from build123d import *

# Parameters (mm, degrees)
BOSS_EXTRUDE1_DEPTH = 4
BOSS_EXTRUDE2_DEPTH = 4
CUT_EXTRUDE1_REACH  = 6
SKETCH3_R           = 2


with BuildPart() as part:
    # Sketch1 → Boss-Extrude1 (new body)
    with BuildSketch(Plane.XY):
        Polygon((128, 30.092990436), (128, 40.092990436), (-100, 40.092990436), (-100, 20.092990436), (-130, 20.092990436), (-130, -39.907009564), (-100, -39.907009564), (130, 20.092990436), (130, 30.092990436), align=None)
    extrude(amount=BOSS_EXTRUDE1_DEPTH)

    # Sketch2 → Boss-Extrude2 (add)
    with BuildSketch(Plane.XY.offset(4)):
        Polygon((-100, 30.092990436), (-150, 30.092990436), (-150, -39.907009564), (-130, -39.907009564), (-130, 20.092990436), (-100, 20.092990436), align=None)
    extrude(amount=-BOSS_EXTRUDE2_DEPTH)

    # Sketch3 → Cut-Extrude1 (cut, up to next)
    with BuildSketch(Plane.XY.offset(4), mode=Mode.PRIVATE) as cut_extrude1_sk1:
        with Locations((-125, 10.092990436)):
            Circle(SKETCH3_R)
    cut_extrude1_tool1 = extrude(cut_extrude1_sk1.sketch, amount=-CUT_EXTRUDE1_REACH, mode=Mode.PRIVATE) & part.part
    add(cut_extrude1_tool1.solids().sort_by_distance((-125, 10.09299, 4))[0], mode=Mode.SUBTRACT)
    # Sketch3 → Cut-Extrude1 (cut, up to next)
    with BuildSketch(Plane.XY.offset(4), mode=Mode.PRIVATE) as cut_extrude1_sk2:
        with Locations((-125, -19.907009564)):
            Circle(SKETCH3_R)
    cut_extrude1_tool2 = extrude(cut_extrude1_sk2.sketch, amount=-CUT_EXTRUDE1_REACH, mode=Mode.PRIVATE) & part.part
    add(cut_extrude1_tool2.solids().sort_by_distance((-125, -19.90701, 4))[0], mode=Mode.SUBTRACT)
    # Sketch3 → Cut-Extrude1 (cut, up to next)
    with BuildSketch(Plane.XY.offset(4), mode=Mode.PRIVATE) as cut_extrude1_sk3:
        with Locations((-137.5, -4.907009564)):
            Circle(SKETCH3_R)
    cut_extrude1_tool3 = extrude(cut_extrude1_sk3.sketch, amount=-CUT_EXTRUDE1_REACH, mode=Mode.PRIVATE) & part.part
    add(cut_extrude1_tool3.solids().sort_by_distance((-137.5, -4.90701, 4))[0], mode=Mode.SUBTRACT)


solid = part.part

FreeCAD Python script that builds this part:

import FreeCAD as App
import Part
import Sketcher

doc = App.newDocument("Part")
body = doc.addObject("PartDesign::Body", "Body")

sketch1 = body.newObject("Sketcher::SketchObject", "Sketch")
sketch1.AttachmentSupport = (doc.getObject("XY_Plane"), [""])
sketch1.MapMode = "FlatFace"
sketch1.addGeometry(Part.LineSegment(App.Vector(128, 30.1, 0), App.Vector(128, 40.1, 0)), False)
sketch1.addGeometry(Part.LineSegment(App.Vector(128, 40.1, 0), App.Vector(-100, 40.1, 0)), False)
sketch1.addGeometry(Part.LineSegment(App.Vector(-100, 40.1, 0), App.Vector(-100, 20.1, 0)), False)
sketch1.addGeometry(Part.LineSegment(App.Vector(-100, 20.1, 0), App.Vector(-130, 20.1, 0)), False)
sketch1.addGeometry(Part.LineSegment(App.Vector(-130, 20.1, 0), App.Vector(-130, -39.9, 0)), False)
sketch1.addGeometry(Part.LineSegment(App.Vector(-130, -39.9, 0), App.Vector(-100, -39.9, 0)), False)
sketch1.addGeometry(Part.LineSegment(App.Vector(-100, -39.9, 0), App.Vector(130, 20.1, 0)), False)
sketch1.addGeometry(Part.LineSegment(App.Vector(130, 20.1, 0), App.Vector(130, 30.1, 0)), False)
sketch1.addGeometry(Part.LineSegment(App.Vector(130, 30.1, 0), App.Vector(128, 30.1, 0)), False)
sketch1.addConstraint(Sketcher.Constraint("Coincident", 0, 2, 1, 1))
sketch1.addConstraint(Sketcher.Constraint("Coincident", 1, 2, 2, 1))
sketch1.addConstraint(Sketcher.Constraint("Coincident", 2, 2, 3, 1))
sketch1.addConstraint(Sketcher.Constraint("Coincident", 3, 2, 4, 1))
sketch1.addConstraint(Sketcher.Constraint("Coincident", 4, 2, 5, 1))
sketch1.addConstraint(Sketcher.Constraint("Coincident", 5, 2, 6, 1))
sketch1.addConstraint(Sketcher.Constraint("Coincident", 6, 2, 7, 1))
sketch1.addConstraint(Sketcher.Constraint("Coincident", 7, 2, 8, 1))
sketch1.addConstraint(Sketcher.Constraint("Coincident", 8, 2, 0, 1))
sketch1.addConstraint(Sketcher.Constraint("Vertical", 0))
sketch1.addConstraint(Sketcher.Constraint("Horizontal", 1))
sketch1.addConstraint(Sketcher.Constraint("Vertical", 2))
sketch1.addConstraint(Sketcher.Constraint("Horizontal", 3))
sketch1.addConstraint(Sketcher.Constraint("Vertical", 4))
sketch1.addConstraint(Sketcher.Constraint("Horizontal", 5))
sketch1.addConstraint(Sketcher.Constraint("Vertical", 7))
sketch1.addConstraint(Sketcher.Constraint("Horizontal", 8))
sketch1.addConstraint(Sketcher.Constraint("Symmetric", 3, 2, 6, 2, -2))
sketch1.addConstraint(Sketcher.Constraint("Vertical", 2, 2, 5, 2))
sketch1.addConstraint(Sketcher.Constraint("Equal", 0, 7))
sketch1.addConstraint(Sketcher.Constraint("DistanceX", 1, 2, 1, 1, 228.0))
sketch1.addConstraint(Sketcher.Constraint("DistanceX", 3, 2, 3, 1, 30.0))
sketch1.addConstraint(Sketcher.Constraint("DistanceX", 8, 2, 8, 1, 2.0))
sketch1.addConstraint(Sketcher.Constraint("DistanceY", 0, 1, 0, 2, 10.0))
sketch1.addConstraint(Sketcher.Constraint("DistanceY", 4, 2, 4, 1, 60.0))
sketch1.addConstraint(Sketcher.Constraint("DistanceY", -1, 1, 0, 2, 40.09299))
pad1 = body.newObject("PartDesign::Pad", "Pad")
pad1.Profile = sketch1
pad1.Length = 4

sketch2 = body.newObject("Sketcher::SketchObject", "Sketch001")
sketch2.AttachmentSupport = (doc.getObject("XY_Plane"), [""])
sketch2.MapMode = "FlatFace"
sketch2.AttachmentOffset = App.Placement(App.Vector(0, 0, 4), App.Rotation())
sketch2.addGeometry(Part.LineSegment(App.Vector(-100, 30, 0), App.Vector(-150, 30, 0)), False)
sketch2.addGeometry(Part.LineSegment(App.Vector(-150, 30, 0), App.Vector(-150, -40, 0)), False)
sketch2.addGeometry(Part.LineSegment(App.Vector(-150, -40, 0), App.Vector(-130, -40, 0)), False)
sketch2.addGeometry(Part.LineSegment(App.Vector(-130, -40, 0), App.Vector(-130, 20, 0)), False)
sketch2.addGeometry(Part.LineSegment(App.Vector(-130, 20, 0), App.Vector(-100, 20, 0)), False)
sketch2.addGeometry(Part.LineSegment(App.Vector(-100, 20, 0), App.Vector(-100, 30, 0)), False)
sketch2.addConstraint(Sketcher.Constraint("Coincident", 0, 2, 1, 1))
sketch2.addConstraint(Sketcher.Constraint("Coincident", 1, 2, 2, 1))
sketch2.addConstraint(Sketcher.Constraint("Coincident", 2, 2, 3, 1))
sketch2.addConstraint(Sketcher.Constraint("Coincident", 3, 2, 4, 1))
sketch2.addConstraint(Sketcher.Constraint("Coincident", 4, 2, 5, 1))
sketch2.addConstraint(Sketcher.Constraint("Coincident", 5, 2, 0, 1))
sketch2.addConstraint(Sketcher.Constraint("Horizontal", 0))
sketch2.addConstraint(Sketcher.Constraint("Vertical", 1))
sketch2.addConstraint(Sketcher.Constraint("Horizontal", 2))
sketch2.addConstraint(Sketcher.Constraint("Vertical", 3))
sketch2.addConstraint(Sketcher.Constraint("Horizontal", 4))
sketch2.addConstraint(Sketcher.Constraint("Vertical", 5))
sketch2.addConstraint(Sketcher.Constraint("DistanceX", 0, 2, 0, 1, 50.0))
sketch2.addConstraint(Sketcher.Constraint("DistanceX", 2, 1, 2, 2, 20.0))
sketch2.addConstraint(Sketcher.Constraint("DistanceY", 1, 2, 1, 1, 70.0))
sketch2.addConstraint(Sketcher.Constraint("DistanceY", 3, 1, 3, 2, 60.0))
sketch2.addConstraint(Sketcher.Constraint("DistanceX", 0, 2, -1, 1, 150.0))
sketch2.addConstraint(Sketcher.Constraint("DistanceY", -1, 1, 0, 2, 30.09299))
pad2 = body.newObject("PartDesign::Pad", "Pad001")
pad2.Profile = sketch2
pad2.Length = 4
pad2.Reversed = True

sketch3 = body.newObject("Sketcher::SketchObject", "Sketch002")
sketch3.AttachmentSupport = (doc.getObject("XY_Plane"), [""])
sketch3.MapMode = "FlatFace"
sketch3.AttachmentOffset = App.Placement(App.Vector(0, 0, 4), App.Rotation())
sketch3.addGeometry(Part.Circle(App.Vector(-125, 10.1, 0), App.Vector(0, 0, 1), 2), False)
sketch3.addConstraint(Sketcher.Constraint("Diameter", 0, 4.0))
sketch3.addConstraint(Sketcher.Constraint("DistanceX", 0, 3, -1, 1, 125.0))
sketch3.addConstraint(Sketcher.Constraint("DistanceY", -1, 1, 0, 3, 10.09299))
pocket1 = body.newObject("PartDesign::Pocket", "Pocket")
pocket1.Profile = sketch3
pocket1.Type = "UpToFirst"

sketch4 = body.newObject("Sketcher::SketchObject", "Sketch003")
sketch4.AttachmentSupport = (doc.getObject("XY_Plane"), [""])
sketch4.MapMode = "FlatFace"
sketch4.AttachmentOffset = App.Placement(App.Vector(0, 0, 4), App.Rotation())
sketch4.addGeometry(Part.Circle(App.Vector(-125, -19.9, 0), App.Vector(0, 0, 1), 2), False)
sketch4.addConstraint(Sketcher.Constraint("Diameter", 0, 4.0))
sketch4.addConstraint(Sketcher.Constraint("DistanceX", 0, 3, -1, 1, 125.0))
sketch4.addConstraint(Sketcher.Constraint("DistanceY", 0, 3, -1, 1, 19.90701))
pocket2 = body.newObject("PartDesign::Pocket", "Pocket001")
pocket2.Profile = sketch4
pocket2.Type = "UpToFirst"

sketch5 = body.newObject("Sketcher::SketchObject", "Sketch004")
sketch5.AttachmentSupport = (doc.getObject("XY_Plane"), [""])
sketch5.MapMode = "FlatFace"
sketch5.AttachmentOffset = App.Placement(App.Vector(0, 0, 4), App.Rotation())
sketch5.addGeometry(Part.Circle(App.Vector(-137.5, -4.9, 0), App.Vector(0, 0, 1), 2), False)
sketch5.addConstraint(Sketcher.Constraint("Diameter", 0, 4.0))
sketch5.addConstraint(Sketcher.Constraint("DistanceX", 0, 3, -1, 1, 137.5))
sketch5.addConstraint(Sketcher.Constraint("DistanceY", 0, 3, -1, 1, 4.90701))
pocket3 = body.newObject("PartDesign::Pocket", "Pocket002")
pocket3.Profile = sketch5
pocket3.Type = "UpToFirst"

doc.recompute()
